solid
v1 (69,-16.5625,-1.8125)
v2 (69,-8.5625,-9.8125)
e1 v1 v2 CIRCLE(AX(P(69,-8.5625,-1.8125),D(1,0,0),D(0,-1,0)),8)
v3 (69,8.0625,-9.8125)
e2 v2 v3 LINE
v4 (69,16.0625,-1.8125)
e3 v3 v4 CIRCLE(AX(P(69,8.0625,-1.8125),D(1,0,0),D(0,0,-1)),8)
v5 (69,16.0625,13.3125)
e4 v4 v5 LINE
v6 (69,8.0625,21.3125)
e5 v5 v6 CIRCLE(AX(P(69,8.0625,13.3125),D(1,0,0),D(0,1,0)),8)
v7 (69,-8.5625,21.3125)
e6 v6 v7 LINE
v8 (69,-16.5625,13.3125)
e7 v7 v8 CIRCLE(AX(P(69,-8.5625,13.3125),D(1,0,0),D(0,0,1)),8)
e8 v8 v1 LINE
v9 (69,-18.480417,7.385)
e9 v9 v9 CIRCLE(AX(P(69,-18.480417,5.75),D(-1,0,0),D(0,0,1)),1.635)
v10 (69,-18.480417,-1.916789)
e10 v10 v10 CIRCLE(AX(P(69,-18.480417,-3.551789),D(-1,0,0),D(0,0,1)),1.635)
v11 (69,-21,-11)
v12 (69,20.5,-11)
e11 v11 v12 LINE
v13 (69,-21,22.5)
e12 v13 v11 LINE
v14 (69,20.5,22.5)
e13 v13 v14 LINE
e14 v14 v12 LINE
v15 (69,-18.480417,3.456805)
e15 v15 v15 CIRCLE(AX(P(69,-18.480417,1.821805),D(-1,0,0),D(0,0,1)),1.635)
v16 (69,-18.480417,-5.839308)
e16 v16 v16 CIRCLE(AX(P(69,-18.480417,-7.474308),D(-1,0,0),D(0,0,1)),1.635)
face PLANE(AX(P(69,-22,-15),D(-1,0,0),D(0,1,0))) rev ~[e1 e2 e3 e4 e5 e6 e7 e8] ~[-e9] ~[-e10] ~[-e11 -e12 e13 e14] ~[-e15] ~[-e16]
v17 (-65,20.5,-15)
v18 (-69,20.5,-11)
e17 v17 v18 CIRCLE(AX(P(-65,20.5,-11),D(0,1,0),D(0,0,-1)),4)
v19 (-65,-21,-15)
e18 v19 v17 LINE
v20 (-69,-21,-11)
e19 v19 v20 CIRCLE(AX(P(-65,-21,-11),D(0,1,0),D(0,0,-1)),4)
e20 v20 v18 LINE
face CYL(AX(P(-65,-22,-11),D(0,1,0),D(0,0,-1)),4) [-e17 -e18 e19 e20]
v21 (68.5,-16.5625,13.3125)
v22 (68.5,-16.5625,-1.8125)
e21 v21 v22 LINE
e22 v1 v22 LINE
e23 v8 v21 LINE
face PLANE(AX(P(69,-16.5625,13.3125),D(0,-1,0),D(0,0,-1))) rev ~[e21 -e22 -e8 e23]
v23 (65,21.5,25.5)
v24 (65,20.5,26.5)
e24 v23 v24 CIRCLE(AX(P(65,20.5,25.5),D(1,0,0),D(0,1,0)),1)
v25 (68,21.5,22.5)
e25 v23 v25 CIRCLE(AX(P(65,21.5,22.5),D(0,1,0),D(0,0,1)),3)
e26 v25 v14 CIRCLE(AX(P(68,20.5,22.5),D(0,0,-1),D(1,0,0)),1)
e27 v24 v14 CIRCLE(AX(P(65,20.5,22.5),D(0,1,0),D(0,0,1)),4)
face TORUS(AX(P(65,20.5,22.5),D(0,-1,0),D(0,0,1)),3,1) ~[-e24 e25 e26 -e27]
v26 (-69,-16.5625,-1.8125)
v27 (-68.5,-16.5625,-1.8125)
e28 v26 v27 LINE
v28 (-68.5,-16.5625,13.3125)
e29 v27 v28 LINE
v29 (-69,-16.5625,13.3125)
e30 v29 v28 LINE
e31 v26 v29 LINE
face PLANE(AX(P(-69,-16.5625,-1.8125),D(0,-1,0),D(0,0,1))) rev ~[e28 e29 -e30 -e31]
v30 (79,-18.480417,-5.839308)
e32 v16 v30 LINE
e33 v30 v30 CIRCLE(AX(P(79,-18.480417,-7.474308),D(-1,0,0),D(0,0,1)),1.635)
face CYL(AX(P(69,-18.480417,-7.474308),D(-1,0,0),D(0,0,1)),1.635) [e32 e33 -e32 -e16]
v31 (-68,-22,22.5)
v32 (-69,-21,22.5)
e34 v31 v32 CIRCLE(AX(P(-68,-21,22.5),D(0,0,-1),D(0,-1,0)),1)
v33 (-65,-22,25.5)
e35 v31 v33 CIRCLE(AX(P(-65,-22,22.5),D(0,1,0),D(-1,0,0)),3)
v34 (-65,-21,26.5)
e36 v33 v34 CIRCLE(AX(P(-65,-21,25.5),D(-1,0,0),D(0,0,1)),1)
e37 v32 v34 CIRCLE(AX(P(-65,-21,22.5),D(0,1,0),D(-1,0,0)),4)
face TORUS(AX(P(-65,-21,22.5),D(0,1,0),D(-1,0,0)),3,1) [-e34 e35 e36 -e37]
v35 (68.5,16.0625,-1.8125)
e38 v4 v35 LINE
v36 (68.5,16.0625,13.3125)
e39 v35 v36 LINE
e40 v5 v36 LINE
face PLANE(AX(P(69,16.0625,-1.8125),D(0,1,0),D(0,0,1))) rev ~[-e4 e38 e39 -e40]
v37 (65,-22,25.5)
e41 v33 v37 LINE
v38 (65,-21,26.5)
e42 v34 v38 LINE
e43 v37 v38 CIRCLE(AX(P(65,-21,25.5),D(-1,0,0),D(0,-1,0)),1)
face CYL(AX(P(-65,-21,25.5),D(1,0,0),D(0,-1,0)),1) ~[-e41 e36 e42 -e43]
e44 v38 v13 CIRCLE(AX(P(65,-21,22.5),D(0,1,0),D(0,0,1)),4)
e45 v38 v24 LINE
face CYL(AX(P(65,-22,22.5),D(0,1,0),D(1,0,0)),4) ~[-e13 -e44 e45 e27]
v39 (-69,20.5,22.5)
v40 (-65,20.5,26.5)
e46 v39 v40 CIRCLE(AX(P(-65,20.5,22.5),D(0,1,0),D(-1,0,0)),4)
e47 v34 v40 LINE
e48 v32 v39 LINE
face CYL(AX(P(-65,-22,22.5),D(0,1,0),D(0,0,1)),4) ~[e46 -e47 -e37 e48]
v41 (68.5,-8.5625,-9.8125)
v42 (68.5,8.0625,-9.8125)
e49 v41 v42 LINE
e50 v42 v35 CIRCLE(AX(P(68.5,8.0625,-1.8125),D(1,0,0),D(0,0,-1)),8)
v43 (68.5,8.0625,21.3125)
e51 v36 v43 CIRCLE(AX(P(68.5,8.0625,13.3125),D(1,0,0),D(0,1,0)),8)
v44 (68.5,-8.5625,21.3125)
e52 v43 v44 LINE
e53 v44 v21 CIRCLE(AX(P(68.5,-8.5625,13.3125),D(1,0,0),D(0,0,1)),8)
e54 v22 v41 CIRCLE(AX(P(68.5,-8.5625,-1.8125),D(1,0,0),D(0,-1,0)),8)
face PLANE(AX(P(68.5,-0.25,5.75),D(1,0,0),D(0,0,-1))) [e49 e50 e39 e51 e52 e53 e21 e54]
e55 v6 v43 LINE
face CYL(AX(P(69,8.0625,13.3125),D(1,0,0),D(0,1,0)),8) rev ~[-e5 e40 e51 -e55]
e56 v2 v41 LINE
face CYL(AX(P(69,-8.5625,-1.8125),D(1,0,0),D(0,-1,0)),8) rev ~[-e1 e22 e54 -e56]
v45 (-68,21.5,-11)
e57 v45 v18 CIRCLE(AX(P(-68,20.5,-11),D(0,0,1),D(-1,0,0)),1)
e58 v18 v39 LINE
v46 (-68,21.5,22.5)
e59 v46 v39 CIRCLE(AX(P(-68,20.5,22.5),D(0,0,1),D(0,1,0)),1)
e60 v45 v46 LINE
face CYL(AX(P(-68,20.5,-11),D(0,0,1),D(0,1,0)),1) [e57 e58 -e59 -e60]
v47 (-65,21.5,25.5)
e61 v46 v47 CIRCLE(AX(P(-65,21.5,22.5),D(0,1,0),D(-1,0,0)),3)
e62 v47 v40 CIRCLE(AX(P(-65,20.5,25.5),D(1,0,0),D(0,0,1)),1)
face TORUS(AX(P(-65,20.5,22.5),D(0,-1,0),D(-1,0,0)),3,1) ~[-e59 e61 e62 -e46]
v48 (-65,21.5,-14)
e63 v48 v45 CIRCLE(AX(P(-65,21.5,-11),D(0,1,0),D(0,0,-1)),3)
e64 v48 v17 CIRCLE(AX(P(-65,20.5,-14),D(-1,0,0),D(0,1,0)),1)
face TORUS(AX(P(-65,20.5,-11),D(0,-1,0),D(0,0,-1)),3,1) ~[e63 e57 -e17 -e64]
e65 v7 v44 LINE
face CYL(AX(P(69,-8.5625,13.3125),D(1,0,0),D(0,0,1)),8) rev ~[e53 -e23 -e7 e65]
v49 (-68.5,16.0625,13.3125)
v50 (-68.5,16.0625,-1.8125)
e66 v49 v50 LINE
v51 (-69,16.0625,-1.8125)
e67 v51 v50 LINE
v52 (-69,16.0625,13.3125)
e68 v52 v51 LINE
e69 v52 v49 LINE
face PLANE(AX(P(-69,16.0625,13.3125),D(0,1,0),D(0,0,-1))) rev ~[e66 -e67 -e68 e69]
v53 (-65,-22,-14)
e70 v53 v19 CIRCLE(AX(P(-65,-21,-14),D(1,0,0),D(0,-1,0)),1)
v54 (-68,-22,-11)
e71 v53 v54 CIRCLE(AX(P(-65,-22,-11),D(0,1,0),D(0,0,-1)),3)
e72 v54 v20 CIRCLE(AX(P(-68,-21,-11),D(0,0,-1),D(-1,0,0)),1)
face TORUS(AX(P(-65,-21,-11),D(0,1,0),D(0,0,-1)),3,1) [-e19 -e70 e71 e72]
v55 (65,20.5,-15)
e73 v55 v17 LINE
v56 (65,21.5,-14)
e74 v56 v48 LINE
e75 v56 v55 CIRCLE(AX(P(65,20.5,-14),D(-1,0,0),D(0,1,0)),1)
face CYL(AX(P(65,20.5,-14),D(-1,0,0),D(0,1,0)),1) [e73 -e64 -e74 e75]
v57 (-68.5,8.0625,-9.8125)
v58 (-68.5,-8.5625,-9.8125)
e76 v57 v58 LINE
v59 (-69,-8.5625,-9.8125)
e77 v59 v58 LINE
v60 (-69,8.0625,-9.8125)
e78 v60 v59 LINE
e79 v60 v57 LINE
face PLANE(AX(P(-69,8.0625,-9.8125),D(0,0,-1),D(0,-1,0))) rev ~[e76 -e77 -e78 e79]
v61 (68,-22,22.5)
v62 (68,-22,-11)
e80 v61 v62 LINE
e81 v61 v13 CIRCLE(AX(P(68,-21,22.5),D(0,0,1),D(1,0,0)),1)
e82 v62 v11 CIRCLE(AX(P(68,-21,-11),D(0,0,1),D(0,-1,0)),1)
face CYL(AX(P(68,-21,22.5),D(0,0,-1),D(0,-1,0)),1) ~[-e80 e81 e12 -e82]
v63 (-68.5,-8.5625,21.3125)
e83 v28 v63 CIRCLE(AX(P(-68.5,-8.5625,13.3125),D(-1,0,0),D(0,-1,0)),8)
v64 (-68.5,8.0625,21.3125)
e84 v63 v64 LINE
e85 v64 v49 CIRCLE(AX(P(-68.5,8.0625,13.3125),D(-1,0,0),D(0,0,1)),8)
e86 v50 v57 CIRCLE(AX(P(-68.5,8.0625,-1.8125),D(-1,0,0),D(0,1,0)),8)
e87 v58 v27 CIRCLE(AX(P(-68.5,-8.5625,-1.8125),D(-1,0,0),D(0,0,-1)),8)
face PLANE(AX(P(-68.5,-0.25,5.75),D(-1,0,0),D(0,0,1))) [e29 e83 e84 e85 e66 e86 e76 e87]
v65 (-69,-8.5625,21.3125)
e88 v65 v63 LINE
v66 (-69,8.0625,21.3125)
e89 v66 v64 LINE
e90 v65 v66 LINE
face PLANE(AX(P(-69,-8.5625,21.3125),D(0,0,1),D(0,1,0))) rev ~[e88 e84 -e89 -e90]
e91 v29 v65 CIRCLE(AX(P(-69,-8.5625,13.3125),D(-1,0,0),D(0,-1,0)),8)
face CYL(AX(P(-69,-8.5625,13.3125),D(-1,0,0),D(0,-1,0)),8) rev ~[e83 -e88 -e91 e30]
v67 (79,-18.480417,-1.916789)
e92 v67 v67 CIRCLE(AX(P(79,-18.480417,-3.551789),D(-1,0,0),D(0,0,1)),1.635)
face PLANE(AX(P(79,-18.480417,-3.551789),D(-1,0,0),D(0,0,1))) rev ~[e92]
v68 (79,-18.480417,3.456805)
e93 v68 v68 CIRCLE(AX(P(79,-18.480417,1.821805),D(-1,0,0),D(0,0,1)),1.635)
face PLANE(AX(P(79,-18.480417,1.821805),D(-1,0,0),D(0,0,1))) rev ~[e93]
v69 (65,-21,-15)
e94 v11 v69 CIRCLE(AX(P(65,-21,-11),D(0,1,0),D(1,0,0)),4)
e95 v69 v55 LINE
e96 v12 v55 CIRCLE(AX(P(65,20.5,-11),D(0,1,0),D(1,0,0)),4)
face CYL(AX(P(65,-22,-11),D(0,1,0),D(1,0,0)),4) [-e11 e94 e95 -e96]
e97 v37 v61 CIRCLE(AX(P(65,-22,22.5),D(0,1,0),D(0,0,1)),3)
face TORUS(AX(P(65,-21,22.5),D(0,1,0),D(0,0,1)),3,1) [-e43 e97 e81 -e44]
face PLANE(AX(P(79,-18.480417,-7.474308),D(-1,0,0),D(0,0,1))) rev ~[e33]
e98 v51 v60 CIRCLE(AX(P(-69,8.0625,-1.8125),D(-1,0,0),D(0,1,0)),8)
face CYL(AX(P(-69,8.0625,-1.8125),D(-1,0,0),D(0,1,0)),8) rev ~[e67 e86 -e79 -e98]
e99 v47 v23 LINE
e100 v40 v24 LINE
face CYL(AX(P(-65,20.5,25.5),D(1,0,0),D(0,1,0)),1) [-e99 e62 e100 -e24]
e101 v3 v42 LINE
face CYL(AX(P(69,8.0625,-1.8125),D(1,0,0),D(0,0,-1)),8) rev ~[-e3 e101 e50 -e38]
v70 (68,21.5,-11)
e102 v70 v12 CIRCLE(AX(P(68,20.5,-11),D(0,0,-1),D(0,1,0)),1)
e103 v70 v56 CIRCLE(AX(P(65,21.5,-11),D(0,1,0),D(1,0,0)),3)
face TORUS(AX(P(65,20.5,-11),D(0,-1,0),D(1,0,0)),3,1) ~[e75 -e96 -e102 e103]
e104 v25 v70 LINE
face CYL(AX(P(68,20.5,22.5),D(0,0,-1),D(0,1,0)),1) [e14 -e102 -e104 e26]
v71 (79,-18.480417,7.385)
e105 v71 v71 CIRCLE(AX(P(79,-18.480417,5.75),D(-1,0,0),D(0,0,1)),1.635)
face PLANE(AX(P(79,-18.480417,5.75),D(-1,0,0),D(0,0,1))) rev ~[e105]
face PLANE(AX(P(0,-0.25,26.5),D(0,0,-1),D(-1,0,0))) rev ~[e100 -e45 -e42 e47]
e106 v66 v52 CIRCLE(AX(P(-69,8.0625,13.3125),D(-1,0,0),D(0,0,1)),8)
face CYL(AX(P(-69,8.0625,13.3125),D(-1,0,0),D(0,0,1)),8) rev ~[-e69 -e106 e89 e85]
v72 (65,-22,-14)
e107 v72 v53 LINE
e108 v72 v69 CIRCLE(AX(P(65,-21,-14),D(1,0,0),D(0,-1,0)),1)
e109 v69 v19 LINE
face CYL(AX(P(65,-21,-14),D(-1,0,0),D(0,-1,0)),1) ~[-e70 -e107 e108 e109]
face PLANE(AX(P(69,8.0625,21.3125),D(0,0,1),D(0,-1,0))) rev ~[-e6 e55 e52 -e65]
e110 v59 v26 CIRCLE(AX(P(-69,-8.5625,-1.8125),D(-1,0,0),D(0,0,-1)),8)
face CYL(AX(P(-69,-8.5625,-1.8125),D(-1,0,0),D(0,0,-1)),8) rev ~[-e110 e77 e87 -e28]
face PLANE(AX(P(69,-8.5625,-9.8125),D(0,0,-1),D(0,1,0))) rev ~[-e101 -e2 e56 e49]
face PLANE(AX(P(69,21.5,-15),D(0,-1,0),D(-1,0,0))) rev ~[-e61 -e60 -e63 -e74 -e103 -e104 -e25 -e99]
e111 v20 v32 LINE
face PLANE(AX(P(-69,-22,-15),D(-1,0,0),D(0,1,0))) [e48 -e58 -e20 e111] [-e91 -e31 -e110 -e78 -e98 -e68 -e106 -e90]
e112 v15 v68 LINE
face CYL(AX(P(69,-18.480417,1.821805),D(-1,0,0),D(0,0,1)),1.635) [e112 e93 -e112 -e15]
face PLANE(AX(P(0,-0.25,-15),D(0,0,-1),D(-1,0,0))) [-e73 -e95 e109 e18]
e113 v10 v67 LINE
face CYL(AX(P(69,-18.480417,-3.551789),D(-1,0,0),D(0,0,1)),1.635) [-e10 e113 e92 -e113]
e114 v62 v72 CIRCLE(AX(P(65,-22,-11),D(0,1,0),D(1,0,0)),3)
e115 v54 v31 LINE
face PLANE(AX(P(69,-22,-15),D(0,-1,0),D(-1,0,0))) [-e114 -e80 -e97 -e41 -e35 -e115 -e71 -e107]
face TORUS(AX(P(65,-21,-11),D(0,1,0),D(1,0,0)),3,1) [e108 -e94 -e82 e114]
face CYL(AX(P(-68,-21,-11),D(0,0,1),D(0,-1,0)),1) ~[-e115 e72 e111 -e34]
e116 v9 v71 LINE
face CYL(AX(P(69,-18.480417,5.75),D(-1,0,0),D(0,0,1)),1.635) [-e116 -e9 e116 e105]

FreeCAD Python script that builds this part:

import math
import FreeCAD as App
import Part
import Sketcher


def edges_at(feature, points):
    """Names of the edges that pass closest to the given points."""
    edges = feature.Shape.Edges
    near = lambda p: min(range(len(edges)), key=lambda i: edges[i].distToShape(Part.Vertex(*p))[0])
    return sorted({f"Edge{near(p) + 1}" for p in points})


def add_polygon(sketch, points):
    """Adds a closed chain of lines whose ends are joined by coincident constraints."""
    first, n = sketch.GeometryCount, len(points)
    for a, b in zip(points, points[1:] + points[:1]):
        sketch.addGeometry(Part.LineSegment(App.Vector(*a, 0), App.Vector(*b, 0)), False)
    for i in range(n):
        sketch.addConstraint(Sketcher.Constraint("Coincident", first + i, 2, first + (i + 1) % n, 1))

doc = App.newDocument("Part")
params = doc.addObject("Spreadsheet::Sheet", "Params")
for row, (alias, value) in enumerate([
    ("sketch1_width", "138 mm"),
    ("sketch1_height", "43.5 mm"),
    ("pad1_length", "41.5 mm"),
    ("sketch2_radius", "8 mm"),
    ("pocket1_length", "0.5 mm"),
    ("sketch3_radius", "8 mm"),
    ("pocket2_length", "0.5 mm"),
    ("fillet_radius", "4 mm"),
    ("fillet2_radius", "1 mm"),
    ("sketch4_diameter", "3.27 mm"),
    ("pad2_length", "10 mm"),
], start=1):
    params.set(f"A{row}", alias)
    params.set(f"B{row}", "=" + value)
    params.setAlias(f"B{row}", alias)

body = doc.addObject("PartDesign::Body", "Body")

sketch1 = doc.addObject("Sketcher::SketchObject", "Sketch")
body.addObject(sketch1)
sketch1.AttachmentSupport = (doc.XY_Plane, [""])
sketch1.MapMode = "FlatFace"
sketch1.AttachmentOffset = App.Placement(App.Vector(0, 0, -15), App.Rotation())
add_polygon(sketch1, [(69, 21.5), (69, -22), (-69, -22), (-69, 21.5)])
sketch1.addConstraint(Sketcher.Constraint("Vertical", 0))
sketch1.addConstraint(Sketcher.Constraint("Horizontal", 1))
sketch1.addConstraint(Sketcher.Constraint("Vertical", 2))
sketch1.addConstraint(Sketcher.Constraint("Horizontal", 3))
sketch1.addConstraint(Sketcher.Constraint("DistanceX", 1, 2, 1, 1, 138.0))
sketch1.addConstraint(Sketcher.Constraint("DistanceY", 0, 2, 0, 1, 43.5))
sketch1.addConstraint(Sketcher.Constraint("DistanceX", -1, 1, 0, 2, 69.0))
sketch1.addConstraint(Sketcher.Constraint("DistanceY", 0, 2, -1, 1, 22.0))
sketch1.setExpression("Constraints[8]", "Params.sketch1_width")
sketch1.setExpression("Constraints[9]", "Params.sketch1_height")
pad1 = doc.addObject("PartDesign::Pad", "Pad")
body.addObject(pad1)
pad1.Profile = sketch1
pad1.setExpression("Length", "Params.pad1_length")

sketch2 = doc.addObject("Sketcher::SketchObject", "Sketch001")
body.addObject(sketch2)
sketch2.AttachmentSupport = (doc.YZ_Plane, [""])
sketch2.MapMode = "FlatFace"
sketch2.AttachmentOffset = App.Placement(App.Vector(0, 0, 69), App.Rotation())
sketch2.addGeometry(Part.LineSegment(App.Vector(8.0625, 21.3125, 0), App.Vector(-8.5625, 21.3125, 0)), False)
sketch2.addGeometry(Part.ArcOfCircle(Part.Circle(App.Vector(-8.5625, 13.3125, 0), App.Vector(0, 0, 1), 8), math.radians(90), math.radians(180)), False)
sketch2.addGeometry(Part.LineSegment(App.Vector(-16.5625, 13.3125, 0), App.Vector(-16.5625, -1.8125, 0)), False)
sketch2.addGeometry(Part.ArcOfCircle(Part.Circle(App.Vector(-8.5625, -1.8125, 0), App.Vector(0, 0, 1), 8), math.radians(-180), math.radians(-90)), False)
sketch2.addGeometry(Part.LineSegment(App.Vector(-8.5625, -9.8125, 0), App.Vector(8.0625, -9.8125, 0)), False)
sketch2.addGeometry(Part.ArcOfCircle(Part.Circle(App.Vector(8.0625, -1.8125, 0), App.Vector(0, 0, 1), 8), math.radians(-90), math.radians(0)), False)
sketch2.addGeometry(Part.LineSegment(App.Vector(16.0625, -1.8125, 0), App.Vector(16.0625, 13.3125, 0)), False)
sketch2.addGeometry(Part.ArcOfCircle(Part.Circle(App.Vector(8.0625, 13.3125, 0), App.Vector(0, 0, 1), 8), math.radians(0), math.radians(90)), False)
sketch2.addConstraint(Sketcher.Constraint("Tangent", 0, 2, 1, 1))
sketch2.addConstraint(Sketcher.Constraint("Tangent", 1, 2, 2, 1))
sketch2.addConstraint(Sketcher.Constraint("Tangent", 2, 2, 3, 1))
sketch2.addConstraint(Sketcher.Constraint("Tangent", 3, 2, 4, 1))
sketch2.addConstraint(Sketcher.Constraint("Tangent", 4, 2, 5, 1))
sketch2.addConstraint(Sketcher.Constraint("Tangent", 5, 2, 6, 1))
sketch2.addConstraint(Sketcher.Constraint("Tangent", 6, 2, 7, 1))
sketch2.addConstraint(Sketcher.Constraint("Tangent", 7, 2, 0, 1))
sketch2.addConstraint(Sketcher.Constraint("Horizontal", 0))
sketch2.addConstraint(Sketcher.Constraint("Vertical", 2))
sketch2.addConstraint(Sketcher.Constraint("Horizontal", 4))
sketch2.addConstraint(Sketcher.Constraint("Vertical", 6))
sketch2.addConstraint(Sketcher.Constraint("Equal", 1, 3))
sketch2.addConstraint(Sketcher.Constraint("Equal", 3, 5))
sketch2.addConstraint(Sketcher.Constraint("Equal", 5, 7))
sketch2.addConstraint(Sketcher.Constraint("Radius", 1, 8.0))
sketch2.addConstraint(Sketcher.Constraint("DistanceX", 0, 2, 0, 1, 16.625))
sketch2.addConstraint(Sketcher.Constraint("DistanceY", 2, 2, 2, 1, 15.125))
sketch2.addConstraint(Sketcher.Constraint("DistanceX", 1, 3, -1, 1, 8.5625))
sketch2.addConstraint(Sketcher.Constraint("DistanceY", -1, 1, 1, 3, 13.3125))
sketch2.setExpression("Constraints[15]", "Params.sketch2_radius")
pocket1 = doc.addObject("PartDesign::Pocket", "Pocket")
body.addObject(pocket1)
pocket1.Profile = sketch2
pocket1.setExpression("Length", "Params.pocket1_length")

sketch3 = doc.addObject("Sketcher::SketchObject", "Sketch002")
body.addObject(sketch3)
sketch3.AttachmentSupport = (doc.YZ_Plane, [""])
sketch3.MapMode = "FlatFace"
sketch3.AttachmentOffset = App.Placement(App.Vector(0, 0, -69), App.Rotation())
sketch3.addGeometry(Part.LineSegment(App.Vector(16.0625, 13.3125, 0), App.Vector(16.0625, -1.8125, 0)), False)
sketch3.addGeometry(Part.ArcOfCircle(Part.Circle(App.Vector(8.0625, -1.8125, 0), App.Vector(0, 0, 1), 8), math.radians(-90), math.radians(0)), False)
sketch3.addGeometry(Part.LineSegment(App.Vector(8.0625, -9.8125, 0), App.Vector(-8.5625, -9.8125, 0)), False)
sketch3.addGeometry(Part.ArcOfCircle(Part.Circle(App.Vector(-8.5625, -1.8125, 0), App.Vector(0, 0, 1), 8), math.radians(-180), math.radians(-90)), False)
sketch3.addGeometry(Part.LineSegment(App.Vector(-16.5625, -1.8125, 0), App.Vector(-16.5625, 13.3125, 0)), False)
sketch3.addGeometry(Part.ArcOfCircle(Part.Circle(App.Vector(-8.5625, 13.3125, 0), App.Vector(0, 0, 1), 8), math.radians(90), math.radians(180)), False)
sketch3.addGeometry(Part.LineSegment(App.Vector(-8.5625, 21.3125, 0), App.Vector(8.0625, 21.3125, 0)), False)
sketch3.addGeometry(Part.ArcOfCircle(Part.Circle(App.Vector(8.0625, 13.3125, 0), App.Vector(0, 0, 1), 8), math.radians(0), math.radians(90)), False)
sketch3.addConstraint(Sketcher.Constraint("Tangent", 0, 2, 1, 2))
sketch3.addConstraint(Sketcher.Constraint("Tangent", 1, 1, 2, 1))
sketch3.addConstraint(Sketcher.Constraint("Tangent", 2, 2, 3, 2))
sketch3.addConstraint(Sketcher.Constraint("Tangent", 3, 1, 4, 1))
sketch3.addConstraint(Sketcher.Constraint("Tangent", 4, 2, 5, 2))
sketch3.addConstraint(Sketcher.Constraint("Tangent", 5, 1, 6, 1))
sketch3.addConstraint(Sketcher.Constraint("Tangent", 6, 2, 7, 2))
sketch3.addConstraint(Sketcher.Constraint("Tangent", 7, 1, 0, 1))
sketch3.addConstraint(Sketcher.Constraint("Vertical", 0))
sketch3.addConstraint(Sketcher.Constraint("Horizontal", 2))
sketch3.addConstraint(Sketcher.Constraint("Vertical", 4))
sketch3.addConstraint(Sketcher.Constraint("Horizontal", 6))
sketch3.addConstraint(Sketcher.Constraint("Equal", 1, 3))
sketch3.addConstraint(Sketcher.Constraint("Equal", 3, 5))
sketch3.addConstraint(Sketcher.Constraint("Equal", 5, 7))
sketch3.addConstraint(Sketcher.Constraint("Radius", 1, 8.0))
sketch3.addConstraint(Sketcher.Constraint("DistanceX", 2, 2, 2, 1, 16.625))
sketch3.addConstraint(Sketcher.Constraint("DistanceY", 0, 2, 0, 1, 15.125))
sketch3.addConstraint(Sketcher.Constraint("DistanceX", -1, 1, 1, 3, 8.0625))
sketch3.addConstraint(Sketcher.Constraint("DistanceY", 1, 3, -1, 1, 1.8125))
sketch3.setExpression("Constraints[15]", "Params.sketch3_radius")
pocket2 = doc.addObject("PartDesign::Pocket", "Pocket001")
body.addObject(pocket2)
pocket2.Profile = sketch3
pocket2.setExpression("Length", "Params.pocket2_length")
pocket2.Reversed = True
doc.recompute()

fillet = doc.addObject("PartDesign::Fillet", "Fillet")
body.addObject(fillet)
fillet.Base = (pocket2, edges_at(pocket2, [
    (-69, -0.25, 26.5),
    (69, -0.25, 26.5),
    (-69, -0.25, -15),
    (69, -0.25, -15),
]))
fillet.setExpression("Radius", "Params.fillet_radius")
doc.recompute()

fillet2 = doc.addObject("PartDesign::Fillet", "Fillet001")
body.addObject(fillet2)
fillet2.Base = (fillet, edges_at(fillet, [
    (0, -22, -15),
    (0, 21.5, -15),
    (-69, 21.5, 5.75),
    (0, 21.5, 26.5),
    (69, 21.5, 5.75),
    (67.828, 21.5, 25.328),
    (67.828, 21.5, -13.828),
    (-67.828, 21.5, 25.328),
    (-67.828, 21.5, -13.828),
    (-69, -22, 5.75),
    (69, -22, 5.75),
    (0, -22, 26.5),
    (67.828, -22, 25.328),
    (67.828, -22, -13.828),
    (-67.828, -22, 25.328),
    (-67.828, -22, -13.828),
]))
fillet2.setExpression("Radius", "Params.fillet2_radius")

sketch4 = doc.addObject("Sketcher::SketchObject", "Sketch003")
body.addObject(sketch4)
sketch4.AttachmentSupport = (doc.YZ_Plane, [""])
sketch4.MapMode = "FlatFace"
sketch4.AttachmentOffset = App.Placement(App.Vector(0, 0, 69), App.Rotation())
sketch4.addGeometry(Part.Circle(App.Vector(-18.480417, -7.474308, 0), App.Vector(0, 0, 1), 1.635), False)
sketch4.addGeometry(Part.Circle(App.Vector(-18.480417, -3.551789, 0), App.Vector(0, 0, 1), 1.635), False)
sketch4.addGeometry(Part.Circle(App.Vector(-18.480417, 1.821805, 0), App.Vector(0, 0, 1), 1.635), False)
sketch4.addGeometry(Part.Circle(App.Vector(-18.480417, 5.75, 0), App.Vector(0, 0, 1), 1.635), False)
sketch4.addConstraint(Sketcher.Constraint("Equal", 0, 1))
sketch4.addConstraint(Sketcher.Constraint("Equal", 1, 2))
sketch4.addConstraint(Sketcher.Constraint("Equal", 2, 3))
sketch4.addConstraint(Sketcher.Constraint("Vertical", 0, 3, 1, 3))
sketch4.addConstraint(Sketcher.Constraint("Vertical", 1, 3, 2, 3))
sketch4.addConstraint(Sketcher.Constraint("Vertical", 2, 3, 3, 3))
sketch4.addConstraint(Sketcher.Constraint("Diameter", 0, 3.27))
sketch4.addConstraint(Sketcher.Constraint("DistanceY", -1, 1, 3, 3, 5.75))
sketch4.addConstraint(Sketcher.Constraint("DistanceY", 1, 3, -1, 1, 3.551789))
sketch4.addConstraint(Sketcher.Constraint("DistanceY", 0, 3, 1, 3, 3.922518))
sketch4.addConstraint(Sketcher.Constraint("DistanceX", 0, 3, -1, 1, 18.480417))
sketch4.addConstraint(Sketcher.Constraint("DistanceY", -1, 1, 2, 3, 1.821805))
sketch4.setExpression("Constraints[6]", "Params.sketch4_diameter")
pad2 = doc.addObject("PartDesign::Pad", "Pad001")
body.addObject(pad2)
pad2.Profile = sketch4
pad2.setExpression("Length", "Params.pad2_length")

doc.recompute()
